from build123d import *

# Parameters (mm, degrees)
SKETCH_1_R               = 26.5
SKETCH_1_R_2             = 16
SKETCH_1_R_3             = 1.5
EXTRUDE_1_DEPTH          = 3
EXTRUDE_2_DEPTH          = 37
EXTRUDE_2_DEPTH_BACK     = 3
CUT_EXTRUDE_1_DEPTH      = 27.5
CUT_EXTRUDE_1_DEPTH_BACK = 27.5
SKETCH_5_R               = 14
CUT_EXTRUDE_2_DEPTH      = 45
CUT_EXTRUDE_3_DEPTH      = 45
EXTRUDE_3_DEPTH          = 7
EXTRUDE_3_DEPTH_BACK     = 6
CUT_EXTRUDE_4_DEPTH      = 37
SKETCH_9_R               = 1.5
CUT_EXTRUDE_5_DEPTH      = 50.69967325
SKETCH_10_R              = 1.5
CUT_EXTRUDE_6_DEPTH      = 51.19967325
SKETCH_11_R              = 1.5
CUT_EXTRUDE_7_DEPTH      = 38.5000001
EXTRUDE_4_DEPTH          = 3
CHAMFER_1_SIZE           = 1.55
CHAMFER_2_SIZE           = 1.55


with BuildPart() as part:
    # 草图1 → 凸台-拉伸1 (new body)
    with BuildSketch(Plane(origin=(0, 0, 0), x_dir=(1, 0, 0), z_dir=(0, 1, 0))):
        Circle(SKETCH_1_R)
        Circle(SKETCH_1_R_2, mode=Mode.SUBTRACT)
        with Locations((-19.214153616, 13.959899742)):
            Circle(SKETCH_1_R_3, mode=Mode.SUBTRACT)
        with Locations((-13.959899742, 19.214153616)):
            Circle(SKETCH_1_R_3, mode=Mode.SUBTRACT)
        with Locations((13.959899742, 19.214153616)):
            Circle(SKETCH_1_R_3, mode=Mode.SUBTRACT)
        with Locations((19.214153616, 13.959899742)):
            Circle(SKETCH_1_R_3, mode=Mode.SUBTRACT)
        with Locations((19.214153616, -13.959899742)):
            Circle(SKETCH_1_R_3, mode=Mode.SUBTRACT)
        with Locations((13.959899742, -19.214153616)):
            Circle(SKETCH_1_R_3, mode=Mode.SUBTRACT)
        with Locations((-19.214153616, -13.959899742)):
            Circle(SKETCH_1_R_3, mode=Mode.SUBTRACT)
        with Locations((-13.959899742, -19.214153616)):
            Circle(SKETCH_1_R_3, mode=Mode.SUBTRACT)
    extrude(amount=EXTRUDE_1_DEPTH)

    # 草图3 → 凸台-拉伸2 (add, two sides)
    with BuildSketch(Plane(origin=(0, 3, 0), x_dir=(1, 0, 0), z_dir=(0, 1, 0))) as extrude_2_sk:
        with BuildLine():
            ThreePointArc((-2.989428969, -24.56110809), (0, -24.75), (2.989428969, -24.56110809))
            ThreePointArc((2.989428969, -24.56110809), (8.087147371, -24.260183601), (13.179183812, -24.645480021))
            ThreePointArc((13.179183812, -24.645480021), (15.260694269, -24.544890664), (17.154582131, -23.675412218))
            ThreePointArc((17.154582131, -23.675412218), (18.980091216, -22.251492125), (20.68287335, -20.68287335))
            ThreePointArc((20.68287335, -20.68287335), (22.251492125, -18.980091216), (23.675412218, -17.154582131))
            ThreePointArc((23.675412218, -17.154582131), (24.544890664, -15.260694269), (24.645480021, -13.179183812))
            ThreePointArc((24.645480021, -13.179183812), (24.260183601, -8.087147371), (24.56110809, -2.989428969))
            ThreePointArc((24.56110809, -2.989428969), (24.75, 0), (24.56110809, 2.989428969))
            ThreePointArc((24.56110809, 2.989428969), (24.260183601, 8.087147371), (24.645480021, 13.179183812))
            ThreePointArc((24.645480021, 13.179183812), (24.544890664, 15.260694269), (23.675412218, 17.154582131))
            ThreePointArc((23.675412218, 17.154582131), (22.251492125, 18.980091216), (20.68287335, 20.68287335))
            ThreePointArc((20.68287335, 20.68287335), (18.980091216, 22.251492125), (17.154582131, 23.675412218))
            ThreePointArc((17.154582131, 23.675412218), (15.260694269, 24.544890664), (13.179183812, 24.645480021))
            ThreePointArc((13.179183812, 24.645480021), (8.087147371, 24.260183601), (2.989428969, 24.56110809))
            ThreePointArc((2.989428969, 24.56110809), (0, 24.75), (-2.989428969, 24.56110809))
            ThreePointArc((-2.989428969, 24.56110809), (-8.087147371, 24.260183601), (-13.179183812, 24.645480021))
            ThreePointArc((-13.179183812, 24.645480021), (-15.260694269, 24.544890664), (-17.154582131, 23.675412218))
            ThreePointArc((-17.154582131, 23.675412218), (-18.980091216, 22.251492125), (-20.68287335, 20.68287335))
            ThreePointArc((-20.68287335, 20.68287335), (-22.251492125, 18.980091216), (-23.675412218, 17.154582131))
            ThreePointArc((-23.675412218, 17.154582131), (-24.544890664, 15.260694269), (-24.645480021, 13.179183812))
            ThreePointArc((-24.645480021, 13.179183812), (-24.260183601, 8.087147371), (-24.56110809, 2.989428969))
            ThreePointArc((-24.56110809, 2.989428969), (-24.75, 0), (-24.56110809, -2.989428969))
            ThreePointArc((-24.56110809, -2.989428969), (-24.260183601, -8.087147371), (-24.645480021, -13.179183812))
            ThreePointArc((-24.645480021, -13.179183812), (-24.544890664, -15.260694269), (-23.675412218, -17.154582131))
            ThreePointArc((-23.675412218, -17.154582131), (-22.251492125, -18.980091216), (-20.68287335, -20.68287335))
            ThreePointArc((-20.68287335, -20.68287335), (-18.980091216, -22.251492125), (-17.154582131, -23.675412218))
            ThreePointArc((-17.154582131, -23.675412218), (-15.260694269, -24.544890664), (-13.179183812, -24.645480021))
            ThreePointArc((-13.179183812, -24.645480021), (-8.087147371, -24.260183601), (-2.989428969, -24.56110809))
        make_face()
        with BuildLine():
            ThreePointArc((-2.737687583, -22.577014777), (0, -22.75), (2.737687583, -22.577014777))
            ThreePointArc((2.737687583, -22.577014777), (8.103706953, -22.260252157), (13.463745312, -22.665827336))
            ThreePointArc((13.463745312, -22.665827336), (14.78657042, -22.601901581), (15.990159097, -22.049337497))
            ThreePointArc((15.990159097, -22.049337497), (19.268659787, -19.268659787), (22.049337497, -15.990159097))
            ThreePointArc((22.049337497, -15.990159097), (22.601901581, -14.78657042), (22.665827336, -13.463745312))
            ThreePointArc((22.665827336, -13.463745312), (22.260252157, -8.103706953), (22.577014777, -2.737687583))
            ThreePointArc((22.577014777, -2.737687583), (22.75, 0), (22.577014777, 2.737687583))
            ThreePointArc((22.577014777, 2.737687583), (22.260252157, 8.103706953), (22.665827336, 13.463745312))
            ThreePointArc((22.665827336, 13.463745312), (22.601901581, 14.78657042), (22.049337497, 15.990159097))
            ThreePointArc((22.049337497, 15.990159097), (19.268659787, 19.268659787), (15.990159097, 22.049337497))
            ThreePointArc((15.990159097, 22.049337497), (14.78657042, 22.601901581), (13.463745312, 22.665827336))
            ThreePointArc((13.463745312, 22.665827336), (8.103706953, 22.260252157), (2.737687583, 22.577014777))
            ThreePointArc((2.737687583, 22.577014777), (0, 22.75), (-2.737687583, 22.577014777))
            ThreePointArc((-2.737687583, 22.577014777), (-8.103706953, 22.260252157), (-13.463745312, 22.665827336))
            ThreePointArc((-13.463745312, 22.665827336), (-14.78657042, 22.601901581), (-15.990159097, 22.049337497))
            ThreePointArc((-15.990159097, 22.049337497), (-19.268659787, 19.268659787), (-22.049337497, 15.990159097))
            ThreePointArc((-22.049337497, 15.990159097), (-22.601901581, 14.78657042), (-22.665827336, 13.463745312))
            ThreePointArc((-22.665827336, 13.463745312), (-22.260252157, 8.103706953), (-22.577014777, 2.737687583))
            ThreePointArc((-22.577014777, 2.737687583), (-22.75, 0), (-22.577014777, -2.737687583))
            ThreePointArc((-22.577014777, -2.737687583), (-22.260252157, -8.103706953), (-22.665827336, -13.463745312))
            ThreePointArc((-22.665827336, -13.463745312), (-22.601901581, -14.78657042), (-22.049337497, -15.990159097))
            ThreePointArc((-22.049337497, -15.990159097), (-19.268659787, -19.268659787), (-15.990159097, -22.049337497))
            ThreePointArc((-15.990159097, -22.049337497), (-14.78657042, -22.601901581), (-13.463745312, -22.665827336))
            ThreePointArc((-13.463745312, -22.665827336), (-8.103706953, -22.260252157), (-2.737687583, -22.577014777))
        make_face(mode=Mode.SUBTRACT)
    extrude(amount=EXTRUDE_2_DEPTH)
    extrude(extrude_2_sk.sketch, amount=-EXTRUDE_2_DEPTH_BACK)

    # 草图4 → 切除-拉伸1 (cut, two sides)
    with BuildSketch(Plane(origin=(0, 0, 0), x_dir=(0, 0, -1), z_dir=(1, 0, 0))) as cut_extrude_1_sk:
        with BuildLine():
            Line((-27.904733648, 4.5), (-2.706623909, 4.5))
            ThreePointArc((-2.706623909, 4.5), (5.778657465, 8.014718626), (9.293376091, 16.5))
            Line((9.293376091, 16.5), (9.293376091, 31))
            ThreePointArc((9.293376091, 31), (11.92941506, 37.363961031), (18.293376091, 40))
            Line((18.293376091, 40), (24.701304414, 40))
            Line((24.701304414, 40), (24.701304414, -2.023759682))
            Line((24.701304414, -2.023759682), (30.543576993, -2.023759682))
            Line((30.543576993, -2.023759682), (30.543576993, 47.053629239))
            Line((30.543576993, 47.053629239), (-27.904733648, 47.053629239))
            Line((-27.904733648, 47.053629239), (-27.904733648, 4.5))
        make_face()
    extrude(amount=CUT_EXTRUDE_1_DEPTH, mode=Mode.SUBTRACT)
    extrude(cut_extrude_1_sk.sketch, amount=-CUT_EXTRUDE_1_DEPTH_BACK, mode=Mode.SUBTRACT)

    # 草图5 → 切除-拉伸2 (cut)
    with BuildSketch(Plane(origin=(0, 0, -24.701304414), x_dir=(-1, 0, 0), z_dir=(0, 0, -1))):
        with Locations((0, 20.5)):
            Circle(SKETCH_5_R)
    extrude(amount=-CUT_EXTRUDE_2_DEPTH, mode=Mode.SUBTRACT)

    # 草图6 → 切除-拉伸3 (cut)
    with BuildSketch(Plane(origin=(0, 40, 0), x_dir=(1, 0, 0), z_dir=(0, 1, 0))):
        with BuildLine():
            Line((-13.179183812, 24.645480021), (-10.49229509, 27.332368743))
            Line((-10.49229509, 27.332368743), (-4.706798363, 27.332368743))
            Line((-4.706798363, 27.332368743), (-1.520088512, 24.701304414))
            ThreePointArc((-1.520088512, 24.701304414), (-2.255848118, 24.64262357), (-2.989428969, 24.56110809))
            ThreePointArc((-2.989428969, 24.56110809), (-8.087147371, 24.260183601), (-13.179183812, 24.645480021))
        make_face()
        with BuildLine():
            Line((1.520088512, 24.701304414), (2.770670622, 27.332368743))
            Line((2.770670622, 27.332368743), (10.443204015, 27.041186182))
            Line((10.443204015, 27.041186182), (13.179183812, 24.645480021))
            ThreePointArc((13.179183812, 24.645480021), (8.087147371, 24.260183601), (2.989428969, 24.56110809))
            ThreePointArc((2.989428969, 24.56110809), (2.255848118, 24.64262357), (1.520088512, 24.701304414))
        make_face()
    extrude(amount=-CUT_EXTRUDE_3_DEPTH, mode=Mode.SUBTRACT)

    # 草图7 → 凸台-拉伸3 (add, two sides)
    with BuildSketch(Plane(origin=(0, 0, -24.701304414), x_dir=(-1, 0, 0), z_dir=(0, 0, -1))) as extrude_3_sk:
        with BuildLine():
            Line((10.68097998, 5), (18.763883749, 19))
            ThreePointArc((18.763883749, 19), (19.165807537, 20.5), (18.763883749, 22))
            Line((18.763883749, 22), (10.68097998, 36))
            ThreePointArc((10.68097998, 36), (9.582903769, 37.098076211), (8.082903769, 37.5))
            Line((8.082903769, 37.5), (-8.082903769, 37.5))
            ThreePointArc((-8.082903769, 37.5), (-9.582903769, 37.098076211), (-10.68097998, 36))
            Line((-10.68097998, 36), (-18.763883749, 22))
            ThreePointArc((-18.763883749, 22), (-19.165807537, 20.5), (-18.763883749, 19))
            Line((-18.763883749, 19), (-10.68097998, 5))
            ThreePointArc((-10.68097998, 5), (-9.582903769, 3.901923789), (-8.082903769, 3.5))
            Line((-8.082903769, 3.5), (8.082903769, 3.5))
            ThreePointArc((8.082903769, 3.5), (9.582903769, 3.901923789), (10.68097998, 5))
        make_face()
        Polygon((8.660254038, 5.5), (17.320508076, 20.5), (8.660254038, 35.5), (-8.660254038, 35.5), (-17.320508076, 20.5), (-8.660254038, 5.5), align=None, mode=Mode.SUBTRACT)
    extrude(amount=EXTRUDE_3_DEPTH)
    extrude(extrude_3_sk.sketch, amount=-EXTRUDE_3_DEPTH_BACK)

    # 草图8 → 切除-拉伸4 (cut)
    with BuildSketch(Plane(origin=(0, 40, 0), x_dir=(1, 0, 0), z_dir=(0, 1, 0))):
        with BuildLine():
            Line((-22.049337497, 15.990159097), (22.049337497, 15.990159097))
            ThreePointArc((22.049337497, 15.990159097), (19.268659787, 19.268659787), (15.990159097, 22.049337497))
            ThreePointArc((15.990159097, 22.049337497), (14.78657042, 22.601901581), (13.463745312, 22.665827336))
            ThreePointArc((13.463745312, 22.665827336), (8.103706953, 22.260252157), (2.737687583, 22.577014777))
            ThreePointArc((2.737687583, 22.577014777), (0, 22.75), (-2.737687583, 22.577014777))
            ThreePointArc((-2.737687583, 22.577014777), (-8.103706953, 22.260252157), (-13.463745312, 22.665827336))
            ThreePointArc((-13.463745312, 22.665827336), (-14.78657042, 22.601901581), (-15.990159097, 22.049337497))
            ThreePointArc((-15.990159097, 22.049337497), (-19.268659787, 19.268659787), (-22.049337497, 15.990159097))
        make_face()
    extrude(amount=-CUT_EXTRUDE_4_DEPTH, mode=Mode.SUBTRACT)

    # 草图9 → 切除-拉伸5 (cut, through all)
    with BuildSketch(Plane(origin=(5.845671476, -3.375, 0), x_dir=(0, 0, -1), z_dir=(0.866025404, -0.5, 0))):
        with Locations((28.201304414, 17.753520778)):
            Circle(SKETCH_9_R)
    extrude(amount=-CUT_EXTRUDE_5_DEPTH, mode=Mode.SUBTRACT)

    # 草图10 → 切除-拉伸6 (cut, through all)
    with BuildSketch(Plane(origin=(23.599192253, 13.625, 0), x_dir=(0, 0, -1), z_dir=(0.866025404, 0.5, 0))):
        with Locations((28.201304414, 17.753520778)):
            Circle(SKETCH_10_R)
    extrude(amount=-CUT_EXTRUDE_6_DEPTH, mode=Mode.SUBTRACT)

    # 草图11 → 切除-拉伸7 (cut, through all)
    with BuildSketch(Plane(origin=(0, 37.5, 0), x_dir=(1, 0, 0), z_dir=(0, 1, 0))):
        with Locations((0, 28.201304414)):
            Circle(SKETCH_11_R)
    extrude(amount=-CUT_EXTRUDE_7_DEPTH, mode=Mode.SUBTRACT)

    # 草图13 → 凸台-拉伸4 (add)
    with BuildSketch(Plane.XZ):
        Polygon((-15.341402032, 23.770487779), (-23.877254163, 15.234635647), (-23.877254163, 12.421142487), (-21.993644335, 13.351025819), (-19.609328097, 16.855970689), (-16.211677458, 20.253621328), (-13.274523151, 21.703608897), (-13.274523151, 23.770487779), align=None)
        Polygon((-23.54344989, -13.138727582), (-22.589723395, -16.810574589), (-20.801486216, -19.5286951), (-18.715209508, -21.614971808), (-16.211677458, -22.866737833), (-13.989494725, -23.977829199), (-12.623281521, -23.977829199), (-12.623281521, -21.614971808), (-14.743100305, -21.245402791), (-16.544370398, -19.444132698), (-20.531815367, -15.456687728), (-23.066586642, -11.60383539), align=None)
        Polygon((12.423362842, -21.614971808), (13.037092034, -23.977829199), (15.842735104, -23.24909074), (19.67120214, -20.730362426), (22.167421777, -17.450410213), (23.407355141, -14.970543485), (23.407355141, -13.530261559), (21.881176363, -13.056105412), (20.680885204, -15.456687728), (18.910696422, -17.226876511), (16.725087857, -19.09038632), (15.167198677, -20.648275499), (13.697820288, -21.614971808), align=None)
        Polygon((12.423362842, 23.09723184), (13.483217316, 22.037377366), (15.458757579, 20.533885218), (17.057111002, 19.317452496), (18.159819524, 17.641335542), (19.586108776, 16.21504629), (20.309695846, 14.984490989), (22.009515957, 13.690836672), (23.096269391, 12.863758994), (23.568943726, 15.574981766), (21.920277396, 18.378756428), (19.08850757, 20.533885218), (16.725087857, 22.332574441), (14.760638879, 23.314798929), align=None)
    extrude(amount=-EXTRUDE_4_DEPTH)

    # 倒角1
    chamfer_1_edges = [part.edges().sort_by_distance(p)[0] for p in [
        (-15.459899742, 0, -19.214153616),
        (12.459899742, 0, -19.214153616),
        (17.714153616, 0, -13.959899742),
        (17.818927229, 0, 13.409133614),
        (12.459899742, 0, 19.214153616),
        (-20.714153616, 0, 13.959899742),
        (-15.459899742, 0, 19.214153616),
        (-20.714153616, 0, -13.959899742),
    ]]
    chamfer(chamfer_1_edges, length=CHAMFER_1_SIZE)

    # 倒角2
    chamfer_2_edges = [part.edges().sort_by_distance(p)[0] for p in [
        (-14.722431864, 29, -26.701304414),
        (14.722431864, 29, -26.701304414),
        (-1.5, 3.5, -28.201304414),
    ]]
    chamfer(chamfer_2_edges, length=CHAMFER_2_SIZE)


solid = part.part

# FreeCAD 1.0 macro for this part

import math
import FreeCAD as App
import Part
import Sketcher

V = App.Vector
Q = App.Units.Quantity


def edges_at(feature, points):
    """Names of the edges that pass closest to the given points."""
    edges = feature.Shape.Edges
    near = lambda p: min(range(len(edges)), key=lambda i: edges[i].distToShape(Part.Vertex(*p))[0])
    return sorted({f"Edge{near(p) + 1}" for p in points})


def add_polygon(sketch, points):
    """Adds a closed chain of lines whose ends are joined by coincident constraints."""
    first, n = sketch.GeometryCount, len(points)
    for a, b in zip(points, points[1:] + points[:1]):
        sketch.addGeometry(Part.LineSegment(App.Vector(*a, 0), App.Vector(*b, 0)), False)
    for i in range(n):
        sketch.addConstraint(Sketcher.Constraint("Coincident", first + i, 2, first + (i + 1) % n, 1))

doc = App.newDocument("Part")
body = doc.addObject("PartDesign::Body", "Body")

sketch1 = doc.addObject("Sketcher::SketchObject", "Sketch")
body.addObject(sketch1)
sketch1.AttachmentSupport = (doc.XZ_Plane, [""])
sketch1.MapMode = "FlatFace"
sketch1.addGeometry([
    Part.Circle(V(0, 0, 0), V(0, 0, 1), 26.5),
    Part.Circle(V(-14, 19.2, 0), V(0, 0, 1), 1.5),
    Part.Circle(V(-19.2, 14, 0), V(0, 0, 1), 1.5),
    Part.Circle(V(0, 0, 0), V(0, 0, 1), 16),
    Part.Circle(V(14, 19.2, 0), V(0, 0, 1), 1.5),
    Part.Circle(V(19.2, 14, 0), V(0, 0, 1), 1.5),
    Part.Circle(V(-19.2, -14, 0), V(0, 0, 1), 1.5),
    Part.Circle(V(-14, -19.2, 0), V(0, 0, 1), 1.5),
    Part.Circle(V(19.2, -14, 0), V(0, 0, 1), 1.5),
    Part.Circle(V(14, -19.2, 0), V(0, 0, 1), 1.5),
], False)
sketch1.addConstraint([
    Sketcher.Constraint("Coincident", 0, 3, -1, 1),
    Sketcher.Constraint("Coincident", 3, 3, -1, 1),
    Sketcher.Constraint("Equal", 1, 2),
    Sketcher.Constraint("Equal", 2, 4),
    Sketcher.Constraint("Equal", 4, 5),
    Sketcher.Constraint("Equal", 5, 6),
    Sketcher.Constraint("Equal", 6, 7),
    Sketcher.Constraint("Equal", 7, 8),
    Sketcher.Constraint("Equal", 8, 9),
    Sketcher.Constraint("Symmetric", 5, 3, 6, 3, -1, 1),
    Sketcher.Constraint("Symmetric", 4, 3, 7, 3, -1, 1),
    Sketcher.Constraint("Symmetric", 2, 3, 8, 3, -1, 1),
    Sketcher.Constraint("Symmetric", 1, 3, 9, 3, -1, 1),
    Sketcher.Constraint("Symmetric", 1, 3, 4, 3, -2),
    Sketcher.Constraint("Symmetric", 2, 3, 5, 3, -2),
    Sketcher.Constraint("Diameter", 0, 53.0),
    Sketcher.Constraint("Diameter", 1, 3.0),
    Sketcher.Constraint("Diameter", 3, 32.0),
    Sketcher.Constraint("DistanceX", 1, 3, -1, 1, 13.9599),
    Sketcher.Constraint("DistanceY", -1, 1, 2, 3, 13.9599),
    Sketcher.Constraint("DistanceY", -1, 1, 1, 3, 19.214154),
    Sketcher.Constraint("DistanceX", 2, 3, -1, 1, 19.214154),
])
pad1 = doc.addObject("PartDesign::Pad", "Pad")
body.addObject(pad1)
pad1.Profile = sketch1
pad1.Length = 3
pad1.Reversed = True

sketch2 = doc.addObject("Sketcher::SketchObject", "Sketch001")
body.addObject(sketch2)
sketch2.AttachmentSupport = (doc.XZ_Plane, [""])
sketch2.MapMode = "FlatFace"
sketch2.AttachmentOffset = App.Placement(V(0, 0, -3), App.Rotation())
sketch2.addGeometry([
    Part.ArcOfCircle(Part.Circle(V(0, 1, 0), V(0, 0, 1), 23.7), math.radians(82.77), math.radians(97.23)),
    Part.ArcOfCircle(Part.Circle(V(7.8, 62.3, 0), V(0, 0, 1), 38), math.radians(-97.23), math.radians(-81.82)),
    Part.ArcOfCircle(Part.Circle(V(14, 19.2, 0), V(0, 0, 1), 5.5), math.radians(54), math.radians(98)),
    Part.ArcOfCircle(Part.Circle(V(0.7, 0.7, 0), V(0, 0, 1), 28.3), math.radians(45), math.radians(54.39)),
    Part.ArcOfCircle(Part.Circle(V(0.7, 0.7, 0), V(0, 0, 1), 28.3), math.radians(35.61), math.radians(45)),
    Part.ArcOfCircle(Part.Circle(V(19.2, 14, 0), V(0, 0, 1), 5.5), math.radians(-8), math.radians(36)),
    Part.ArcOfCircle(Part.Circle(V(62.3, 7.8, 0), V(0, 0, 1), 38), math.radians(171.82), math.radians(187.23)),
    Part.ArcOfCircle(Part.Circle(V(1, 0, 0), V(0, 0, 1), 23.7), math.radians(-7.23), math.radians(7.23)),
    Part.ArcOfCircle(Part.Circle(V(62.3, -7.8, 0), V(0, 0, 1), 38), math.radians(172.77), math.radians(188.18)),
    Part.ArcOfCircle(Part.Circle(V(19.2, -14, 0), V(0, 0, 1), 5.5), math.radians(-36), math.radians(8)),
    Part.ArcOfCircle(Part.Circle(V(0.7, -0.7, 0), V(0, 0, 1), 28.3), math.radians(-45), math.radians(-35.61)),
    Part.ArcOfCircle(Part.Circle(V(0.7, -0.7, 0), V(0, 0, 1), 28.3), math.radians(-54.39), math.radians(-45)),
    Part.ArcOfCircle(Part.Circle(V(14, -19.2, 0), V(0, 0, 1), 5.5), math.radians(-98), math.radians(-54)),
    Part.ArcOfCircle(Part.Circle(V(7.8, -62.3, 0), V(0, 0, 1), 38), math.radians(81.82), math.radians(97.23)),
    Part.ArcOfCircle(Part.Circle(V(0, -1, 0), V(0, 0, 1), 23.7), math.radians(-97.23), math.radians(-82.77)),
    Part.ArcOfCircle(Part.Circle(V(-7.8, -62.3, 0), V(0, 0, 1), 38), math.radians(82.77), math.radians(98.18)),
    Part.ArcOfCircle(Part.Circle(V(-14, -19.2, 0), V(0, 0, 1), 5.5), math.radians(-126), math.radians(-82)),
    Part.ArcOfCircle(Part.Circle(V(-0.7, -0.7, 0), V(0, 0, 1), 28.3), math.radians(-135), math.radians(-125.61)),
    Part.ArcOfCircle(Part.Circle(V(-0.7, -0.7, 0), V(0, 0, 1), 28.3), math.radians(-144.39), math.radians(-135)),
    Part.ArcOfCircle(Part.Circle(V(-19.2, -14, 0), V(0, 0, 1), 5.5), math.radians(172), math.radians(216)),
    Part.ArcOfCircle(Part.Circle(V(-62.3, -7.8, 0), V(0, 0, 1), 38), math.radians(-8.18), math.radians(7.23)),
    Part.ArcOfCircle(Part.Circle(V(-1, 0, 0), V(0, 0, 1), 23.7), math.radians(172.77), math.radians(187.23)),
    Part.ArcOfCircle(Part.Circle(V(-62.3, 7.8, 0), V(0, 0, 1), 38), math.radians(-7.23), math.radians(8.18)),
    Part.ArcOfCircle(Part.Circle(V(-19.2, 14, 0), V(0, 0, 1), 5.5), math.radians(144), math.radians(188)),
    Part.ArcOfCircle(Part.Circle(V(-0.7, 0.7, 0), V(0, 0, 1), 28.3), math.radians(135), math.radians(144.39)),
    Part.ArcOfCircle(Part.Circle(V(-0.7, 0.7, 0), V(0, 0, 1), 28.3), math.radians(125.61), math.radians(135)),
    Part.ArcOfCircle(Part.Circle(V(-14, 19.2, 0), V(0, 0, 1), 5.5), math.radians(82), math.radians(126)),
    Part.ArcOfCircle(Part.Circle(V(-7.8, 62.3, 0), V(0, 0, 1), 38), math.radians(-98.18), math.radians(-82.77)),
    Part.ArcOfCircle(Part.Circle(V(0, 1, 0), V(0, 0, 1), 21.7), math.radians(82.77), math.radians(97.23)),
    Part.ArcOfCircle(Part.Circle(V(-7.8, 62.3, 0), V(0, 0, 1), 40), math.radians(-98.18), math.radians(-82.77)),
    Part.ArcOfCircle(Part.Circle(V(-14, 19.2, 0), V(0, 0, 1), 3.5), math.radians(82), math.radians(126)),
    Part.ArcOfCircle(Part.Circle(V(-0.7, 0.7, 0), V(0, 0, 1), 26.3), math.radians(125.61), math.radians(144.39)),
    Part.ArcOfCircle(Part.Circle(V(-19.2, 14, 0), V(0, 0, 1), 3.5), math.radians(144), math.radians(188)),
    Part.ArcOfCircle(Part.Circle(V(-62.3, 7.8, 0), V(0, 0, 1), 40), math.radians(-7.23), math.radians(8.18)),
    Part.ArcOfCircle(Part.Circle(V(-1, 0, 0), V(0, 0, 1), 21.7), math.radians(172.77), math.radians(187.23)),
    Part.ArcOfCircle(Part.Circle(V(-62.3, -7.8, 0), V(0, 0, 1), 40), math.radians(-8.18), math.radians(7.23)),
    Part.ArcOfCircle(Part.Circle(V(-19.2, -14, 0), V(0, 0, 1), 3.5), math.radians(172), math.radians(216)),
    Part.ArcOfCircle(Part.Circle(V(-0.7, -0.7, 0), V(0, 0, 1), 26.3), math.radians(-144.39), math.radians(-125.61)),
    Part.ArcOfCircle(Part.Circle(V(-14, -19.2, 0), V(0, 0, 1), 3.5), math.radians(-126), math.radians(-82)),
    Part.ArcOfCircle(Part.Circle(V(-7.8, -62.3, 0), V(0, 0, 1), 40), math.radians(82.77), math.radians(98.18)),
    Part.ArcOfCircle(Part.Circle(V(0, -1, 0), V(0, 0, 1), 21.7), math.radians(-97.23), math.radians(-82.77)),
    Part.ArcOfCircle(Part.Circle(V(7.8, -62.3, 0), V(0, 0, 1), 40), math.radians(81.82), math.radians(97.23)),
    Part.ArcOfCircle(Part.Circle(V(14, -19.2, 0), V(0, 0, 1), 3.5), math.radians(-98), math.radians(-54)),
    Part.ArcOfCircle(Part.Circle(V(0.7, -0.7, 0), V(0, 0, 1), 26.3), math.radians(-54.39), math.radians(-35.61)),
    Part.ArcOfCircle(Part.Circle(V(19.2, -14, 0), V(0, 0, 1), 3.5), math.radians(-36), math.radians(8)),
    Part.ArcOfCircle(Part.Circle(V(62.3, -7.8, 0), V(0, 0, 1), 40), math.radians(172.77), math.radians(188.18)),
    Part.ArcOfCircle(Part.Circle(V(1, 0, 0), V(0, 0, 1), 21.7), math.radians(-7.23), math.radians(7.23)),
    Part.ArcOfCircle(Part.Circle(V(62.3, 7.8, 0), V(0, 0, 1), 40), math.radians(171.82), math.radians(187.23)),
    Part.ArcOfCircle(Part.Circle(V(19.2, 14, 0), V(0, 0, 1), 3.5), math.radians(-8), math.radians(36)),
    Part.ArcOfCircle(Part.Circle(V(0.7, 0.7, 0), V(0, 0, 1), 26.3), math.radians(35.61), math.radians(54.39)),
    Part.ArcOfCircle(Part.Circle(V(14, 19.2, 0), V(0, 0, 1), 3.5), math.radians(54), math.radians(98)),
    Part.ArcOfCircle(Part.Circle(V(7.8, 62.3, 0), V(0, 0, 1), 40), math.radians(-97.23), math.radians(-81.82)),
], False)
sketch2.addConstraint([
    Sketcher.Constraint("Tangent", 0, 1, 1, 1),
    Sketcher.Constraint("Tangent", 1, 2, 2, 2),
    Sketcher.Constraint("Tangent", 2, 1, 3, 2),
    Sketcher.Constraint("Tangent", 3, 1, 4, 2),
    Sketcher.Constraint("Tangent", 4, 1, 5, 2),
    Sketcher.Constraint("Tangent", 5, 1, 6, 1),
    Sketcher.Constraint("Tangent", 6, 2, 7, 2),
    Sketcher.Constraint("Tangent", 7, 1, 8, 1),
    Sketcher.Constraint("Tangent", 8, 2, 9, 2),
    Sketcher.Constraint("Tangent", 9, 1, 10, 2),
    Sketcher.Constraint("Tangent", 10, 1, 11, 2),
    Sketcher.Constraint("Tangent", 11, 1, 12, 2),
    Sketcher.Constraint("Tangent", 12, 1, 13, 1),
    Sketcher.Constraint("Tangent", 13, 2, 14, 2),
    Sketcher.Constraint("Tangent", 14, 1, 15, 1),
    Sketcher.Constraint("Tangent", 15, 2, 16, 2),
    Sketcher.Constraint("Tangent", 16, 1, 17, 2),
    Sketcher.Constraint("Tangent", 17, 1, 18, 2),
    Sketcher.Constraint("Tangent", 18, 1, 19, 2),
    Sketcher.Constraint("Tangent", 19, 1, 20, 1),
    Sketcher.Constraint("Tangent", 20, 2, 21, 2),
    Sketcher.Constraint("Tangent", 21, 1, 22, 1),
    Sketcher.Constraint("Tangent", 22, 2, 23, 2),
    Sketcher.Constraint("Tangent", 23, 1, 24, 2),
    Sketcher.Constraint("Tangent", 24, 1, 25, 2),
    Sketcher.Constraint("Tangent", 25, 1, 26, 2),
    Sketcher.Constraint("Tangent", 26, 1, 27, 1),
    Sketcher.Constraint("Tangent", 27, 2, 0, 2),
    Sketcher.Constraint("Tangent", 28, 2, 29, 2),
    Sketcher.Constraint("Tangent", 29, 1, 30, 1),
    Sketcher.Constraint("Tangent", 30, 2, 31, 1),
    Sketcher.Constraint("Tangent", 31, 2, 32, 1),
    Sketcher.Constraint("Tangent", 32, 2, 33, 2),
    Sketcher.Constraint("Tangent", 33, 1, 34, 1),
    Sketcher.Constraint("Tangent", 34, 2, 35, 2),
    Sketcher.Constraint("Tangent", 35, 1, 36, 1),
    Sketcher.Constraint("Tangent", 36, 2, 37, 1),
    Sketcher.Constraint("Tangent", 37, 2, 38, 1),
    Sketcher.Constraint("Tangent", 38, 2, 39, 2),
    Sketcher.Constraint("Tangent", 39, 1, 40, 1),
    Sketcher.Constraint("Tangent", 40, 2, 41, 2),
    Sketcher.Constraint("Tangent", 41, 1, 42, 1),
    Sketcher.Constraint("Tangent", 42, 2, 43, 1),
    Sketcher.Constraint("Tangent", 43, 2, 44, 1),
    Sketcher.Constraint("Tangent", 44, 2, 45, 2),
    Sketcher.Constraint("Tangent", 45, 1, 46, 1),
    Sketcher.Constraint("Tangent", 46, 2, 47, 2),
    Sketcher.Constraint("Tangent", 47, 1, 48, 1),
    Sketcher.Constraint("Tangent", 48, 2, 49, 1),
    Sketcher.Constraint("Tangent", 49, 2, 50, 1),
    Sketcher.Constraint("Tangent", 50, 2, 51, 2),
    Sketcher.Constraint("Tangent", 51, 1, 28, 1),
    Sketcher.Constraint("Coincident", 28, 3, 0, 3),
    Sketcher.Constraint("Coincident", 29, 3, 27, 3),
    Sketcher.Constraint("Coincident", 30, 3, 26, 3),
    Sketcher.Constraint("Coincident", 31, 3, 24, 3),
    Sketcher.Constraint("Coincident", 32, 3, 23, 3),
    Sketcher.Constraint("Coincident", 33, 3, 22, 3),
    Sketcher.Constraint("Coincident", 34, 3, 21, 3),
    Sketcher.Constraint("Coincident", 35, 3, 20, 3),
    Sketcher.Constraint("Coincident", 36, 3, 19, 3),
    Sketcher.Constraint("Coincident", 37, 3, 17, 3),
    Sketcher.Constraint("Coincident", 38, 3, 16, 3),
    Sketcher.Constraint("Coincident", 39, 3, 15, 3),
    Sketcher.Constraint("Coincident", 40, 3, 14, 3),
    Sketcher.Constraint("Coincident", 41, 3, 13, 3),
    Sketcher.Constraint("Coincident", 42, 3, 12, 3),
    Sketcher.Constraint("Coincident", 43, 3, 10, 3),
    Sketcher.Constraint("Coincident", 44, 3, 9, 3),
    Sketcher.Constraint("Coincident", 45, 3, 8, 3),
    Sketcher.Constraint("Coincident", 46, 3, 7, 3),
    Sketcher.Constraint("Coincident", 47, 3, 6, 3),
    Sketcher.Constraint("Coincident", 48, 3, 5, 3),
    Sketcher.Constraint("Coincident", 49, 3, 3, 3),
    Sketcher.Constraint("Coincident", 50, 3, 2, 3),
    Sketcher.Constraint("Coincident", 51, 3, 1, 3),
    Sketcher.Constraint("Equal", 3, 4),
    Sketcher.Constraint("Equal", 2, 5),
    Sketcher.Constraint("Equal", 1, 6),
    Sketcher.Constraint("Equal", 0, 7),
    Sketcher.Constraint("Equal", 6, 8),
    Sketcher.Constraint("Equal", 5, 9),
    Sketcher.Constraint("Equal", 4, 10),
    Sketcher.Constraint("Equal", 10, 11),
    Sketcher.Constraint("Equal", 9, 12),
    Sketcher.Constraint("Equal", 8, 13),
    Sketcher.Constraint("Equal", 7, 14),
    Sketcher.Constraint("Equal", 13, 15),
    Sketcher.Constraint("Equal", 12, 16),
    Sketcher.Constraint("Equal", 11, 17),
    Sketcher.Constraint("Equal", 17, 18),
    Sketcher.Constraint("Equal", 16, 19),
    Sketcher.Constraint("Equal", 15, 20),
    Sketcher.Constraint("Equal", 14, 21),
    Sketcher.Constraint("Equal", 20, 22),
    Sketcher.Constraint("Equal", 19, 23),
    Sketcher.Constraint("Equal", 18, 24),
    Sketcher.Constraint("Equal", 23, 26),
    Sketcher.Constraint("Equal", 22, 27),
    Sketcher.Constraint("Symmetric", 0, 3, 14, 3, -1, 1),
    Sketcher.Constraint("Symmetric", 2, 3, 16, 3, -1, 1),
    Sketcher.Constraint("Symmetric", 5, 3, 19, 3, -1, 1),
    Sketcher.Constraint("Symmetric", 7, 3, 21, 3, -1, 1),
    Sketcher.Constraint("Symmetric", 9, 3, 23, 3, -1, 1),
    Sketcher.Constraint("Symmetric", 12, 3, 26, 3, -1, 1),
    Sketcher.Constraint("Symmetric", 13, 3, 15, 3, -2),
    Sketcher.Constraint("Symmetric", 10, 3, 17, 3, -2),
    Sketcher.Constraint("Symmetric", 8, 3, 20, 3, -2),
    Sketcher.Constraint("Horizontal", 10, 1, 17, 1),
    Sketcher.Constraint("Horizontal", 3, 1, 24, 1),
    Sketcher.Constraint("Vertical", 3, 1, 10, 1),
    Sketcher.Constraint("Radius", 1, 38.0),
    Sketcher.Constraint("Radius", 29, 40.0),
    Sketcher.Constraint("Radius", 0, 23.75),
    Sketcher.Constraint("Radius", 3, 28.25),
    Sketcher.Constraint("DistanceY", -1, 1, 0, 3, 1.0),
    Sketcher.Constraint("DistanceX", -1, 1, 7, 3, 1.0),
    Sketcher.Constraint("Radius", 2, 5.487151),
    Sketcher.Constraint("DistanceX", -1, 1, 2, 3, 13.9599),
    Sketcher.Constraint("DistanceY", -1, 1, 5, 3, 13.9599),
    Sketcher.Constraint("DistanceY", -1, 1, 1, 3, 62.258881),
    Sketcher.Constraint("DistanceX", -1, 1, 6, 3, 62.258881),
    Sketcher.Constraint("DistanceX", -1, 1, 3, 1, 20.682873),
])
pad2 = doc.addObject("PartDesign::Pad", "Pad001")
body.addObject(pad2)
pad2.Profile = sketch2
pad2.Type = "TwoLengths"
pad2.Length = 37
pad2.Length2 = 3
pad2.Reversed = True

sketch3 = doc.addObject("Sketcher::SketchObject", "Sketch002")
body.addObject(sketch3)
sketch3.AttachmentSupport = (doc.YZ_Plane, [""])
sketch3.MapMode = "FlatFace"
sketch3.addGeometry([
    Part.LineSegment(V(4, 28, 0), V(4, 3, 0)),
    Part.ArcOfCircle(Part.Circle(V(17, 3, 0), V(0, 0, 1), 12), math.radians(-180), math.radians(-90)),
    Part.LineSegment(V(16, -9, 0), V(31, -9, 0)),
    Part.ArcOfCircle(Part.Circle(V(31, -18, 0), V(0, 0, 1), 9), math.radians(0), math.radians(90)),
    Part.LineSegment(V(40, -18, 0), V(40, -25, 0)),
    Part.LineSegment(V(40, -25, 0), V(-2, -25, 0)),
    Part.LineSegment(V(-2, -25, 0), V(-2, -31, 0)),
    Part.LineSegment(V(-2, -31, 0), V(47, -31, 0)),
    Part.LineSegment(V(47, -31, 0), V(47, 28, 0)),
    Part.LineSegment(V(47, 28, 0), V(4, 28, 0)),
], False)
sketch3.addConstraint([
    Sketcher.Constraint("Tangent", 0, 2, 1, 1),
    Sketcher.Constraint("Tangent", 1, 2, 2, 1),
    Sketcher.Constraint("Tangent", 2, 2, 3, 2),
    Sketcher.Constraint("Tangent", 3, 1, 4, 1),
    Sketcher.Constraint("Coincident", 4, 2, 5, 1),
    Sketcher.Constraint("Coincident", 5, 2, 6, 1),
    Sketcher.Constraint("Coincident", 6, 2, 7, 1),
    Sketcher.Constraint("Coincident", 7, 2, 8, 1),
    Sketcher.Constraint("Coincident", 8, 2, 9, 1),
    Sketcher.Constraint("Coincident", 9, 2, 0, 1),
    Sketcher.Constraint("Vertical", 0),
    Sketcher.Constraint("Horizontal", 2),
    Sketcher.Constraint("Vertical", 4),
    Sketcher.Constraint("Horizontal", 5),
    Sketcher.Constraint("Vertical", 6),
    Sketcher.Constraint("Horizontal", 7),
    Sketcher.Constraint("Vertical", 8),
    Sketcher.Constraint("Horizontal", 9),
    Sketcher.Constraint("Radius", 1, 12.0),
    Sketcher.Constraint("Radius", 3, 9.0),
    Sketcher.Constraint("DistanceX", 2, 1, 2, 2, 14.5),
    Sketcher.Constraint("DistanceX", -1, 1, 3, 3, 31.0),
    Sketcher.Constraint("DistanceX", 5, 2, 5, 1, 42.02376),
    Sketcher.Constraint("DistanceX", 7, 1, 7, 2, 49.077389),
    Sketcher.Constraint("DistanceY", 0, 2, 0, 1, 25.19811),
    Sketcher.Constraint("DistanceY", 4, 2, 4, 1, 6.407928),
    Sketcher.Constraint("DistanceY", 8, 1, 8, 2, 58.448311),
    Sketcher.Constraint("DistanceY", -1, 1, 1, 3, 2.706624),
])
pocket1 = doc.addObject("PartDesign::Pocket", "Pocket")
body.addObject(pocket1)
pocket1.Profile = sketch3
pocket1.Type = "ThroughAll"
pocket1.Midplane = True

sketch4 = doc.addObject("Sketcher::SketchObject", "Sketch003")
body.addObject(sketch4)
sketch4.AttachmentSupport = (doc.XY_Plane, [""])
sketch4.MapMode = "FlatFace"
sketch4.AttachmentOffset = App.Placement(V(0, 0, -24.701304), App.Rotation())
sketch4.addGeometry(Part.Circle(V(0, 20, 0), V(0, 0, 1), 14), False)
sketch4.addConstraint([
    Sketcher.Constraint("PointOnObject", 0, 3, -2),
    Sketcher.Constraint("Diameter", 0, 28.0),
    Sketcher.Constraint("DistanceY", -1, 1, 0, 3, 20.5),
])
pocket2 = doc.addObject("PartDesign::Pocket", "Pocket001")
body.addObject(pocket2)
pocket2.Profile = sketch4
pocket2.Length = 45
pocket2.Reversed = True

sketch5 = doc.addObject("Sketcher::SketchObject", "Sketch004")
body.addObject(sketch5)
sketch5.AttachmentSupport = (doc.XZ_Plane, [""])
sketch5.MapMode = "FlatFace"
sketch5.AttachmentOffset = App.Placement(V(0, 0, -40), App.Rotation())
sketch5.addGeometry([
    Part.LineSegment(V(-10.5, -27.3, 0), V(-13.2, -24.6, 0)),
    Part.ArcOfCircle(Part.Circle(V(-7.8, -62.3, 0), V(0, 0, 1), 38), math.radians(82.77), math.radians(98.18)),
    Part.ArcOfCircle(Part.Circle(V(0, -1, 0), V(0, 0, 1), 23.7), math.radians(-97.23), math.radians(-93.67)),
    Part.LineSegment(V(-1.5, -24.7, 0), V(-4.7, -27.3, 0)),
    Part.LineSegment(V(-4.7, -27.3, 0), V(-10.5, -27.3, 0)),
    Part.LineSegment(V(2.8, -27.3, 0), V(1.5, -24.7, 0)),
    Part.ArcOfCircle(Part.Circle(V(0, -1, 0), V(0, 0, 1), 23.7), math.radians(-86.33), math.radians(-82.77)),
    Part.ArcOfCircle(Part.Circle(V(7.8, -62.3, 0), V(0, 0, 1), 38), math.radians(81.82), math.radians(97.23)),
    Part.LineSegment(V(13.2, -24.6, 0), V(10.4, -27, 0)),
    Part.LineSegment(V(10.4, -27, 0), V(2.8, -27.3, 0)),
], False)
sketch5.addConstraint([
    Sketcher.Constraint("Coincident", 0, 2, 1, 2),
    Sketcher.Constraint("Tangent", 1, 1, 2, 1),
    Sketcher.Constraint("Coincident", 2, 2, 3, 1),
    Sketcher.Constraint("Coincident", 3, 2, 4, 1),
    Sketcher.Constraint("Coincident", 4, 2, 0, 1),
    Sketcher.Constraint("Coincident", 5, 2, 6, 1),
    Sketcher.Constraint("Tangent", 6, 2, 7, 2),
    Sketcher.Constraint("Coincident", 7, 1, 8, 1),
    Sketcher.Constraint("Coincident", 8, 2, 9, 1),
    Sketcher.Constraint("Coincident", 9, 2, 5, 1),
    Sketcher.Constraint("Horizontal", 4),
    Sketcher.Constraint("Coincident", 6, 3, 2, 3),
    Sketcher.Constraint("Equal", 2, 6),
    Sketcher.Constraint("Equal", 1, 7),
    Sketcher.Constraint("Symmetric", 1, 3, 7, 3, -2),
    Sketcher.Constraint("Horizontal", 2, 2, 5, 2),
    Sketcher.Constraint("Horizontal", 0, 2, 7, 1),
    Sketcher.Constraint("Horizontal", 4, 2, 9, 2),
    Sketcher.Constraint("Radius", 1, 38.0),
    Sketcher.Constraint("Angle", 0, Q("135 deg")),
    Sketcher.Constraint("Radius", 2, 23.75),
    Sketcher.Constraint("DistanceY", 2, 3, -1, 1, 1.0),
    Sketcher.Constraint("DistanceX", 3, 2, -1, 1, 4.706798),
    Sketcher.Constraint("DistanceY", 1, 3, 0, 2, 37.613401),
    Sketcher.Constraint("DistanceX", 0, 2, 7, 3, 20.951699),
    Sketcher.Constraint("DistanceX", 1, 1, 9, 2, 5.7601),
    Sketcher.Constraint("Distance", 8, 3.636618),
    Sketcher.Constraint("DistanceX", 4, 2, 4, 1, 5.785497),
    Sketcher.Constraint("DistanceX", 2, 2, -1, 1, 1.520089),
    Sketcher.Constraint("DistanceX", 8, 2, 7, 1, 2.73598),
])
pocket3 = doc.addObject("PartDesign::Pocket", "Pocket002")
body.addObject(pocket3)
pocket3.Profile = sketch5
pocket3.Length = 45
pocket3.Reversed = True

sketch6 = doc.addObject("Sketcher::SketchObject", "Sketch005")
body.addObject(sketch6)
sketch6.AttachmentSupport = (doc.XY_Plane, [""])
sketch6.MapMode = "FlatFace"
sketch6.AttachmentOffset = App.Placement(V(0, 0, -24.701304), App.Rotation())
sketch6.addGeometry(Part.LineSegment(V(-10.7, 5, 0), V(-18.8, 19, 0)), False)
sketch6.addGeometry(Part.ArcOfCircle(Part.Circle(V(-16.2, 20.5, 0), V(0, 0, 1), 3), math.radians(150), math.radians(210)), False)
sketch6.addGeometry(Part.LineSegment(V(-18.8, 22, 0), V(-10.7, 36, 0)), False)
sketch6.addGeometry(Part.ArcOfCircle(Part.Circle(V(-8.1, 34.5, 0), V(0, 0, 1), 3), math.radians(90), math.radians(150)), False)
sketch6.addGeometry(Part.LineSegment(V(-8.1, 37.5, 0), V(8.1, 37.5, 0)), False)
sketch6.addGeometry(Part.ArcOfCircle(Part.Circle(V(8.1, 34.5, 0), V(0, 0, 1), 3), math.radians(30), math.radians(90)), False)
sketch6.addGeometry(Part.LineSegment(V(10.7, 36, 0), V(18.8, 22, 0)), False)
sketch6.addGeometry(Part.ArcOfCircle(Part.Circle(V(16.2, 20.5, 0), V(0, 0, 1), 3), math.radians(-30), math.radians(30)), False)
sketch6.addGeometry(Part.LineSegment(V(18.8, 19, 0), V(10.7, 5, 0)), False)
sketch6.addGeometry(Part.ArcOfCircle(Part.Circle(V(8.1, 6.5, 0), V(0, 0, 1), 3), math.radians(-90), math.radians(-30)), False)
sketch6.addGeometry(Part.LineSegment(V(8.1, 3.5, 0), V(-8.1, 3.5, 0)), False)
sketch6.addGeometry(Part.ArcOfCircle(Part.Circle(V(-8.1, 6.5, 0), V(0, 0, 1), 3), math.radians(-150), math.radians(-90)), False)
add_polygon(sketch6, [(-17.3, 20.5), (-8.7, 5.5), (8.7, 5.5), (17.3, 20.5), (8.7, 35.5), (-8.7, 35.5)])
sketch6.addConstraint([
    Sketcher.Constraint("Tangent", 0, 2, 1, 2),
    Sketcher.Constraint("Tangent", 1, 1, 2, 1),
    Sketcher.Constraint("Tangent", 2, 2, 3, 2),
    Sketcher.Constraint("Tangent", 3, 1, 4, 1),
    Sketcher.Constraint("Tangent", 4, 2, 5, 2),
    Sketcher.Constraint("Tangent", 5, 1, 6, 1),
    Sketcher.Constraint("Tangent", 6, 2, 7, 2),
    Sketcher.Constraint("Tangent", 7, 1, 8, 1),
    Sketcher.Constraint("Tangent", 8, 2, 9, 2),
    Sketcher.Constraint("Tangent", 9, 1, 10, 1),
    Sketcher.Constraint("Tangent", 10, 2, 11, 2),
    Sketcher.Constraint("Tangent", 11, 1, 0, 1),
    Sketcher.Constraint("Horizontal", 4),
    Sketcher.Constraint("Horizontal", 10),
    Sketcher.Constraint("Horizontal", 13),
    Sketcher.Constraint("Horizontal", 16),
    Sketcher.Constraint("Equal", 1, 3),
    Sketcher.Constraint("Equal", 3, 5),
    Sketcher.Constraint("Equal", 5, 7),
    Sketcher.Constraint("Equal", 7, 9),
    Sketcher.Constraint("Equal", 9, 11),
    Sketcher.Constraint("Symmetric", 1, 3, 7, 3, -2),
    Sketcher.Constraint("Symmetric", 14, 2, 17, 2, -2),
    Sketcher.Constraint("Parallel", 0, 6),
    Sketcher.Constraint("Parallel", 2, 8),
    Sketcher.Constraint("Parallel", 6, 12),
    Sketcher.Constraint("Parallel", 8, 14),
    Sketcher.Constraint("Parallel", 12, 15),
    Sketcher.Constraint("Parallel", 14, 17),
    Sketcher.Constraint("Horizontal", 2, 2, 5, 1),
    Sketcher.Constraint("Horizontal", 7, 3, 14, 2),
    Sketcher.Constraint("Vertical", 5, 3, 9, 3),
    Sketcher.Constraint("Vertical", 13, 2, 15, 2),
    Sketcher.Constraint("Radius", 1, 3.0),
    Sketcher.Constraint("Angle", 0, Q("120 deg")),
    Sketcher.Constraint("DistanceY", -1, 1, 0, 2, 19.0),
    Sketcher.Constraint("DistanceY", -1, 1, 2, 2, 36.0),
    Sketcher.Constraint("DistanceY", 12, 2, 11, 3, 1.0),
    Sketcher.Constraint("DistanceX", 13, 1, 13, 2, 17.320508),
    Sketcher.Constraint("DistanceX", 7, 3, 14, 2, 1.154701),
])
pad3 = doc.addObject("PartDesign::Pad", "Pad002")
body.addObject(pad3)
pad3.Profile = sketch6
pad3.Type = "TwoLengths"
pad3.Length = 7
pad3.Length2 = 6
pad3.Reversed = True

sketch7 = doc.addObject("Sketcher::SketchObject", "Sketch006")
body.addObject(sketch7)
sketch7.AttachmentSupport = (doc.XZ_Plane, [""])
sketch7.MapMode = "FlatFace"
sketch7.AttachmentOffset = App.Placement(V(0, 0, -40), App.Rotation())
sketch7.addGeometry([
    Part.LineSegment(V(-22, -16, 0), V(22, -16, 0)),
    Part.ArcOfCircle(Part.Circle(V(0.7, -0.7, 0), V(0, 0, 1), 26.3), math.radians(-54.39), math.radians(-35.61)),
    Part.ArcOfCircle(Part.Circle(V(14, -19.2, 0), V(0, 0, 1), 3.5), math.radians(-98), math.radians(-54)),
    Part.ArcOfCircle(Part.Circle(V(7.8, -62.3, 0), V(0, 0, 1), 40), math.radians(81.82), math.radians(97.23)),
    Part.ArcOfCircle(Part.Circle(V(0, -1, 0), V(0, 0, 1), 21.7), math.radians(-97.23), math.radians(-82.77)),
    Part.ArcOfCircle(Part.Circle(V(-7.8, -62.3, 0), V(0, 0, 1), 40), math.radians(82.77), math.radians(98.18)),
    Part.ArcOfCircle(Part.Circle(V(-14, -19.2, 0), V(0, 0, 1), 3.5), math.radians(-126), math.radians(-82)),
    Part.ArcOfCircle(Part.Circle(V(-0.7, -0.7, 0), V(0, 0, 1), 26.3), math.radians(-144.39), math.radians(-125.61)),
], False)
sketch7.addConstraint([
    Sketcher.Constraint("Coincident", 0, 2, 1, 2),
    Sketcher.Constraint("Tangent", 1, 1, 2, 2),
    Sketcher.Constraint("Tangent", 2, 1, 3, 1),
    Sketcher.Constraint("Tangent", 3, 2, 4, 2),
    Sketcher.Constraint("Tangent", 4, 1, 5, 1),
    Sketcher.Constraint("Tangent", 5, 2, 6, 2),
    Sketcher.Constraint("Tangent", 6, 1, 7, 2),
    Sketcher.Constraint("Coincident", 7, 1, 0, 1),
    Sketcher.Constraint("Horizontal", 0),
    Sketcher.Constraint("Equal", 3, 5),
    Sketcher.Constraint("Equal", 2, 6),
    Sketcher.Constraint("Equal", 1, 7),
    Sketcher.Constraint("Symmetric", 3, 3, 5, 3, -2),
    Sketcher.Constraint("Symmetric", 1, 3, 7, 3, -2),
    Sketcher.Constraint("Radius", 3, 40.0),
    Sketcher.Constraint("Radius", 1, 26.25),
    Sketcher.Constraint("Radius", 4, 21.75),
    Sketcher.Constraint("DistanceY", 4, 3, -1, 1, 1.0),
    Sketcher.Constraint("Radius", 2, 3.487151),
    Sketcher.Constraint("DistanceX", -1, 1, 2, 3, 13.9599),
    Sketcher.Constraint("DistanceX", 0, 1, 0, 2, 44.098675),
    Sketcher.Constraint("DistanceY", 3, 3, -1, 1, 62.258881),
    Sketcher.Constraint("DistanceY", 0, 2, -1, 1, 15.990159),
])
pocket4 = doc.addObject("PartDesign::Pocket", "Pocket003")
body.addObject(pocket4)
pocket4.Profile = sketch7
pocket4.Length = 37
pocket4.Reversed = True

sketch8 = doc.addObject("Sketcher::SketchObject", "Sketch007")
body.addObject(sketch8)
sketch8.Placement = App.Placement(V(5.845671, -3.375, 0), App.Rotation(V(0, 0, -1), V(0.5, 0.866025404, 0), V(0.866025404, -0.5, 0), "ZXY"))
sketch8.addGeometry(Part.Circle(V(28.2, 17.8, 0), V(0, 0, 1), 1.5), False)
sketch8.addConstraint([
    Sketcher.Constraint("Diameter", 0, 3.0),
    Sketcher.Constraint("DistanceY", -1, 1, 0, 3, 17.753521),
    Sketcher.Constraint("DistanceX", -1, 1, 0, 3, 28.201304),
])
pocket5 = doc.addObject("PartDesign::Pocket", "Pocket004")
body.addObject(pocket5)
pocket5.Profile = sketch8
pocket5.Type = "ThroughAll"

sketch9 = doc.addObject("Sketcher::SketchObject", "Sketch008")
body.addObject(sketch9)
sketch9.Placement = App.Placement(V(23.599192, 13.625, 0), App.Rotation(V(0, 0, -1), V(-0.5, 0.866025404, 0), V(0.866025404, 0.5, 0), "ZXY"))
sketch9.addGeometry(Part.Circle(V(28.2, 17.8, 0), V(0, 0, 1), 1.5), False)
sketch9.addConstraint([
    Sketcher.Constraint("Diameter", 0, 3.0),
    Sketcher.Constraint("DistanceY", -1, 1, 0, 3, 17.753521),
    Sketcher.Constraint("DistanceX", -1, 1, 0, 3, 28.201304),
])
pocket6 = doc.addObject("PartDesign::Pocket", "Pocket005")
body.addObject(pocket6)
pocket6.Profile = sketch9
pocket6.Type = "ThroughAll"

sketch10 = doc.addObject("Sketcher::SketchObject", "Sketch009")
body.addObject(sketch10)
sketch10.AttachmentSupport = (doc.XZ_Plane, [""])
sketch10.MapMode = "FlatFace"
sketch10.AttachmentOffset = App.Placement(V(0, 0, -37.5), App.Rotation())
sketch10.addGeometry(Part.Circle(V(0, -28.2, 0), V(0, 0, 1), 1.5), False)
sketch10.addConstraint([
    Sketcher.Constraint("PointOnObject", 0, 3, -2),
    Sketcher.Constraint("Diameter", 0, 3.0),
    Sketcher.Constraint("DistanceY", 0, 3, -1, 1, 28.201304),
])
pocket7 = doc.addObject("PartDesign::Pocket", "Pocket006")
body.addObject(pocket7)
pocket7.Profile = sketch10
pocket7.Type = "ThroughAll"
pocket7.Reversed = True

sketch11 = doc.addObject("Sketcher::SketchObject", "Sketch010")
body.addObject(sketch11)
sketch11.AttachmentSupport = (doc.XZ_Plane, [""])
sketch11.MapMode = "FlatFace"
add_polygon(sketch11, [(-15.341402, 23.770488), (-23.877254, 15.234636), (-23.877254, 12.421142), (-21.993644, 13.351026), (-19.609328, 16.855971), (-16.211677, 20.253621), (-13.274523, 21.703609), (-13.274523, 23.770488)])
add_polygon(sketch11, [(-23.54345, -13.138728), (-22.589723, -16.810575), (-20.801486, -19.528695), (-18.71521, -21.614972), (-16.211677, -22.866738), (-13.989495, -23.977829), (-12.623282, -23.977829), (-12.623282, -21.614972), (-14.7431, -21.245403), (-16.54437, -19.444133), (-20.531815, -15.456688), (-23.066587, -11.603835)])
add_polygon(sketch11, [(12.423363, -21.614972), (13.037092, -23.977829), (15.842735, -23.249091), (19.671202, -20.730362), (22.167422, -17.45041), (23.407355, -14.970543), (23.407355, -13.530262), (21.881176, -13.056105), (20.680885, -15.456688), (18.910696, -17.226877), (16.725088, -19.090386), (15.167199, -20.648275), (13.69782, -21.614972)])
add_polygon(sketch11, [(12.423363, 23.097232), (13.483217, 22.037377), (15.458758, 20.533885), (17.057111, 19.317452), (18.15982, 17.641336), (19.586109, 16.215046), (20.309696, 14.984491), (22.009516, 13.690837), (23.096269, 12.863759), (23.568944, 15.574982), (21.920277, 18.378756), (19.088508, 20.533885), (16.725088, 22.332574), (14.760639, 23.314799)])
sketch11.addConstraint([
    Sketcher.Constraint("Vertical", 1),
    Sketcher.Constraint("Vertical", 6),
    Sketcher.Constraint("Horizontal", 7),
    Sketcher.Constraint("Horizontal", 13),
    Sketcher.Constraint("Vertical", 14),
    Sketcher.Constraint("Vertical", 25),
    Sketcher.Constraint("Horizontal", 32),
    Sketcher.Constraint("Distance", 17, 5.639099),
    Sketcher.Constraint("Distance", 22, 4.582701),
    Sketcher.Constraint("Distance", 39, 2.136102),
    Sketcher.Constraint("DistanceX", 7, 2, 7, 1, 2.066879),
    Sketcher.Constraint("DistanceY", 6, 1, 6, 2, 2.066879),
    Sketcher.Constraint("DistanceY", 25, 1, 25, 2, 1.440282),
    Sketcher.Constraint("DistanceX", 15, 2, -1, 1, 14.7431),
    Sketcher.Constraint("DistanceX", -1, 1, 30, 2, 15.167199),
    Sketcher.Constraint("DistanceY", -1, 1, 45, 2, 23.314799),
    Sketcher.Constraint("DistanceY", 8, 2, 2, 2, 30.1616),
    Sketcher.Constraint("DistanceX", 18, 2, 9, 2, 2.2651),
    Sketcher.Constraint("DistanceY", 22, 2, 25, 2, 7.200101),
    Sketcher.Constraint("DistanceY", 29, 2, 27, 2, 3.633699),
    Sketcher.Constraint("DistanceY", 30, 2, 28, 2, 3.421399),
    Sketcher.Constraint("DistanceY", 39, 2, 36, 2, 3.950499),
    Sketcher.Constraint("DistanceX", 43, 2, 37, 2, 0.497601),
    Sketcher.Constraint("Distance", 9, 3.253609),
    Sketcher.Constraint("Distance", 10, 2.950441),
    Sketcher.Constraint("Distance", 16, 2.547381),
    Sketcher.Constraint("Distance", 18, 4.611891),
    Sketcher.Constraint("Distance", 20, 2.441262),
    Sketcher.Constraint("Distance", 21, 2.89874),
    Sketcher.Constraint("Distance", 26, 1.598138),
    Sketcher.Constraint("Distance", 30, 2.203188),
    Sketcher.Constraint("Distance", 33, 1.498861),
    Sketcher.Constraint("Distance", 34, 2.482589),
    Sketcher.Constraint("Distance", 38, 1.427531),
    Sketcher.Constraint("Distance", 43, 3.558581),
    Sketcher.Constraint("Distance", 45, 2.196321),
    Sketcher.Constraint("Distance", 46, 2.34738),
    Sketcher.Constraint("DistanceX", 13, 1, 13, 2, 1.366213),
    Sketcher.Constraint("DistanceX", 32, 2, 32, 1, 1.274457),
    Sketcher.Constraint("DistanceY", 1, 2, 1, 1, 2.813493),
    Sketcher.Constraint("DistanceY", 14, 1, 14, 2, 2.362857),
    Sketcher.Constraint("DistanceX", 3, 2, -1, 1, 19.609328),
    Sketcher.Constraint("DistanceY", -1, 1, 3, 2, 16.855971),
    Sketcher.Constraint("DistanceY", -1, 1, 4, 2, 20.253621),
    Sketcher.Constraint("DistanceY", -1, 1, 5, 2, 21.703609),
    Sketcher.Constraint("DistanceX", 10, 2, -1, 1, 18.71521),
    Sketcher.Constraint("DistanceY", 10, 2, -1, 1, 21.614972),
    Sketcher.Constraint("DistanceY", 12, 2, -1, 1, 23.977829),
    Sketcher.Constraint("DistanceX", 13, 2, -1, 1, 12.623282),
    Sketcher.Constraint("DistanceX", 16, 2, -1, 1, 16.54437),
    Sketcher.Constraint("DistanceX", 19, 2, -1, 1, 23.54345),
    Sketcher.Constraint("DistanceY", 20, 2, -1, 1, 23.977829),
    Sketcher.Constraint("DistanceY", 21, 2, -1, 1, 23.249091),
    Sketcher.Constraint("DistanceX", -1, 1, 23, 2, 22.167422),
    Sketcher.Constraint("DistanceY", 23, 2, -1, 1, 17.45041),
    Sketcher.Constraint("DistanceY", 25, 2, -1, 1, 13.530262),
    Sketcher.Constraint("DistanceX", -1, 1, 31, 2, 13.69782),
    Sketcher.Constraint("DistanceY", 31, 2, -1, 1, 21.614972),
    Sketcher.Constraint("DistanceX", -1, 1, 35, 2, 17.057111),
    Sketcher.Constraint("DistanceX", -1, 1, 36, 2, 18.15982),
    Sketcher.Constraint("DistanceX", -1, 1, 37, 2, 19.586109),
    Sketcher.Constraint("DistanceY", -1, 1, 38, 2, 14.984491),
    Sketcher.Constraint("DistanceX", -1, 1, 40, 2, 23.096269),
    Sketcher.Constraint("DistanceY", -1, 1, 40, 2, 12.863759),
    Sketcher.Constraint("DistanceY", -1, 1, 41, 2, 15.574982),
    Sketcher.Constraint("DistanceX", -1, 1, 45, 2, 14.760639),
    Sketcher.Constraint("DistanceY", -1, 1, 46, 2, 23.097232),
    Sketcher.Constraint("DistanceX", 1, 2, 2, 2, 1.88361),
    Sketcher.Constraint("DistanceY", 2, 2, 0, 2, 1.88361),
    Sketcher.Constraint("DistanceY", 1, 2, 3, 2, 4.434828),
    Sketcher.Constraint("DistanceX", 3, 2, 4, 2, 3.397651),
    Sketcher.Constraint("DistanceX", 2, 2, 5, 2, 8.719121),
    Sketcher.Constraint("DistanceX", 1, 2, 8, 2, 1.287531),
    Sketcher.Constraint("DistanceY", 9, 2, 8, 2, 2.718121),
    Sketcher.Constraint("DistanceX", 9, 2, 11, 2, 4.589809),
    Sketcher.Constraint("DistanceY", 11, 2, 1, 2, 35.28788),
    Sketcher.Constraint("DistanceY", 14, 2, 15, 2, 0.369569),
    Sketcher.Constraint("DistanceX", 8, 2, 17, 2, 2.057908),
    Sketcher.Constraint("DistanceY", 17, 2, 19, 2, 2.31796),
    Sketcher.Constraint("DistanceX", 21, 2, 24, 2, 7.56462),
    Sketcher.Constraint("DistanceX", 26, 2, 25, 2, 1.526179),
    Sketcher.Constraint("DistanceX", 27, 2, 26, 2, 1.200291),
    Sketcher.Constraint("DistanceX", 28, 2, 27, 2, 1.770189),
    Sketcher.Constraint("DistanceY", 28, 2, 27, 2, 1.770189),
    Sketcher.Constraint("DistanceY", 28, 2, 26, 2, 4.170771),
    Sketcher.Constraint("DistanceX", 5, 2, 33, 2, 26.75774),
    Sketcher.Constraint("DistanceX", 33, 2, 34, 2, 1.97554),
    Sketcher.Constraint("DistanceY", 36, 2, 34, 2, 2.89255),
    Sketcher.Constraint("DistanceY", 37, 2, 36, 2, 1.426289),
    Sketcher.Constraint("DistanceY", 38, 2, 35, 2, 4.332962),
    Sketcher.Constraint("DistanceX", 37, 2, 42, 2, 2.334169),
    Sketcher.Constraint("DistanceY", 37, 2, 42, 2, 2.16371),
    Sketcher.Constraint("DistanceX", 34, 2, 44, 2, 1.26633),
    Sketcher.Constraint("Distance", 41, 2.752117),
])
pad4 = doc.addObject("PartDesign::Pad", "Pad003")
body.addObject(pad4)
pad4.Profile = sketch11
pad4.Length = 3
pad4.Reversed = True
doc.recompute()

chamfer = doc.addObject("PartDesign::Chamfer", "Chamfer")
body.addObject(chamfer)
chamfer.Base = (pad4, edges_at(pad4, [
    (-15.46, 0, -19.214),
    (12.46, 0, -19.214),
    (17.714, 0, -13.96),
    (17.714, 0, 13.96),
    (12.46, 0, 19.214),
    (-20.714, 0, 13.96),
    (-15.46, 0, 19.214),
    (-20.714, 0, -13.96),
]))
chamfer.Size = 1.55
doc.recompute()

chamfer2 = doc.addObject("PartDesign::Chamfer", "Chamfer001")
body.addObject(chamfer2)
chamfer2.Base = (chamfer, edges_at(chamfer, [(-14.722, 29, -26.701), (14.722, 29, -26.701), (-1.5, 3.5, -28.201)]))
chamfer2.Size = 1.55

doc.recompute()
